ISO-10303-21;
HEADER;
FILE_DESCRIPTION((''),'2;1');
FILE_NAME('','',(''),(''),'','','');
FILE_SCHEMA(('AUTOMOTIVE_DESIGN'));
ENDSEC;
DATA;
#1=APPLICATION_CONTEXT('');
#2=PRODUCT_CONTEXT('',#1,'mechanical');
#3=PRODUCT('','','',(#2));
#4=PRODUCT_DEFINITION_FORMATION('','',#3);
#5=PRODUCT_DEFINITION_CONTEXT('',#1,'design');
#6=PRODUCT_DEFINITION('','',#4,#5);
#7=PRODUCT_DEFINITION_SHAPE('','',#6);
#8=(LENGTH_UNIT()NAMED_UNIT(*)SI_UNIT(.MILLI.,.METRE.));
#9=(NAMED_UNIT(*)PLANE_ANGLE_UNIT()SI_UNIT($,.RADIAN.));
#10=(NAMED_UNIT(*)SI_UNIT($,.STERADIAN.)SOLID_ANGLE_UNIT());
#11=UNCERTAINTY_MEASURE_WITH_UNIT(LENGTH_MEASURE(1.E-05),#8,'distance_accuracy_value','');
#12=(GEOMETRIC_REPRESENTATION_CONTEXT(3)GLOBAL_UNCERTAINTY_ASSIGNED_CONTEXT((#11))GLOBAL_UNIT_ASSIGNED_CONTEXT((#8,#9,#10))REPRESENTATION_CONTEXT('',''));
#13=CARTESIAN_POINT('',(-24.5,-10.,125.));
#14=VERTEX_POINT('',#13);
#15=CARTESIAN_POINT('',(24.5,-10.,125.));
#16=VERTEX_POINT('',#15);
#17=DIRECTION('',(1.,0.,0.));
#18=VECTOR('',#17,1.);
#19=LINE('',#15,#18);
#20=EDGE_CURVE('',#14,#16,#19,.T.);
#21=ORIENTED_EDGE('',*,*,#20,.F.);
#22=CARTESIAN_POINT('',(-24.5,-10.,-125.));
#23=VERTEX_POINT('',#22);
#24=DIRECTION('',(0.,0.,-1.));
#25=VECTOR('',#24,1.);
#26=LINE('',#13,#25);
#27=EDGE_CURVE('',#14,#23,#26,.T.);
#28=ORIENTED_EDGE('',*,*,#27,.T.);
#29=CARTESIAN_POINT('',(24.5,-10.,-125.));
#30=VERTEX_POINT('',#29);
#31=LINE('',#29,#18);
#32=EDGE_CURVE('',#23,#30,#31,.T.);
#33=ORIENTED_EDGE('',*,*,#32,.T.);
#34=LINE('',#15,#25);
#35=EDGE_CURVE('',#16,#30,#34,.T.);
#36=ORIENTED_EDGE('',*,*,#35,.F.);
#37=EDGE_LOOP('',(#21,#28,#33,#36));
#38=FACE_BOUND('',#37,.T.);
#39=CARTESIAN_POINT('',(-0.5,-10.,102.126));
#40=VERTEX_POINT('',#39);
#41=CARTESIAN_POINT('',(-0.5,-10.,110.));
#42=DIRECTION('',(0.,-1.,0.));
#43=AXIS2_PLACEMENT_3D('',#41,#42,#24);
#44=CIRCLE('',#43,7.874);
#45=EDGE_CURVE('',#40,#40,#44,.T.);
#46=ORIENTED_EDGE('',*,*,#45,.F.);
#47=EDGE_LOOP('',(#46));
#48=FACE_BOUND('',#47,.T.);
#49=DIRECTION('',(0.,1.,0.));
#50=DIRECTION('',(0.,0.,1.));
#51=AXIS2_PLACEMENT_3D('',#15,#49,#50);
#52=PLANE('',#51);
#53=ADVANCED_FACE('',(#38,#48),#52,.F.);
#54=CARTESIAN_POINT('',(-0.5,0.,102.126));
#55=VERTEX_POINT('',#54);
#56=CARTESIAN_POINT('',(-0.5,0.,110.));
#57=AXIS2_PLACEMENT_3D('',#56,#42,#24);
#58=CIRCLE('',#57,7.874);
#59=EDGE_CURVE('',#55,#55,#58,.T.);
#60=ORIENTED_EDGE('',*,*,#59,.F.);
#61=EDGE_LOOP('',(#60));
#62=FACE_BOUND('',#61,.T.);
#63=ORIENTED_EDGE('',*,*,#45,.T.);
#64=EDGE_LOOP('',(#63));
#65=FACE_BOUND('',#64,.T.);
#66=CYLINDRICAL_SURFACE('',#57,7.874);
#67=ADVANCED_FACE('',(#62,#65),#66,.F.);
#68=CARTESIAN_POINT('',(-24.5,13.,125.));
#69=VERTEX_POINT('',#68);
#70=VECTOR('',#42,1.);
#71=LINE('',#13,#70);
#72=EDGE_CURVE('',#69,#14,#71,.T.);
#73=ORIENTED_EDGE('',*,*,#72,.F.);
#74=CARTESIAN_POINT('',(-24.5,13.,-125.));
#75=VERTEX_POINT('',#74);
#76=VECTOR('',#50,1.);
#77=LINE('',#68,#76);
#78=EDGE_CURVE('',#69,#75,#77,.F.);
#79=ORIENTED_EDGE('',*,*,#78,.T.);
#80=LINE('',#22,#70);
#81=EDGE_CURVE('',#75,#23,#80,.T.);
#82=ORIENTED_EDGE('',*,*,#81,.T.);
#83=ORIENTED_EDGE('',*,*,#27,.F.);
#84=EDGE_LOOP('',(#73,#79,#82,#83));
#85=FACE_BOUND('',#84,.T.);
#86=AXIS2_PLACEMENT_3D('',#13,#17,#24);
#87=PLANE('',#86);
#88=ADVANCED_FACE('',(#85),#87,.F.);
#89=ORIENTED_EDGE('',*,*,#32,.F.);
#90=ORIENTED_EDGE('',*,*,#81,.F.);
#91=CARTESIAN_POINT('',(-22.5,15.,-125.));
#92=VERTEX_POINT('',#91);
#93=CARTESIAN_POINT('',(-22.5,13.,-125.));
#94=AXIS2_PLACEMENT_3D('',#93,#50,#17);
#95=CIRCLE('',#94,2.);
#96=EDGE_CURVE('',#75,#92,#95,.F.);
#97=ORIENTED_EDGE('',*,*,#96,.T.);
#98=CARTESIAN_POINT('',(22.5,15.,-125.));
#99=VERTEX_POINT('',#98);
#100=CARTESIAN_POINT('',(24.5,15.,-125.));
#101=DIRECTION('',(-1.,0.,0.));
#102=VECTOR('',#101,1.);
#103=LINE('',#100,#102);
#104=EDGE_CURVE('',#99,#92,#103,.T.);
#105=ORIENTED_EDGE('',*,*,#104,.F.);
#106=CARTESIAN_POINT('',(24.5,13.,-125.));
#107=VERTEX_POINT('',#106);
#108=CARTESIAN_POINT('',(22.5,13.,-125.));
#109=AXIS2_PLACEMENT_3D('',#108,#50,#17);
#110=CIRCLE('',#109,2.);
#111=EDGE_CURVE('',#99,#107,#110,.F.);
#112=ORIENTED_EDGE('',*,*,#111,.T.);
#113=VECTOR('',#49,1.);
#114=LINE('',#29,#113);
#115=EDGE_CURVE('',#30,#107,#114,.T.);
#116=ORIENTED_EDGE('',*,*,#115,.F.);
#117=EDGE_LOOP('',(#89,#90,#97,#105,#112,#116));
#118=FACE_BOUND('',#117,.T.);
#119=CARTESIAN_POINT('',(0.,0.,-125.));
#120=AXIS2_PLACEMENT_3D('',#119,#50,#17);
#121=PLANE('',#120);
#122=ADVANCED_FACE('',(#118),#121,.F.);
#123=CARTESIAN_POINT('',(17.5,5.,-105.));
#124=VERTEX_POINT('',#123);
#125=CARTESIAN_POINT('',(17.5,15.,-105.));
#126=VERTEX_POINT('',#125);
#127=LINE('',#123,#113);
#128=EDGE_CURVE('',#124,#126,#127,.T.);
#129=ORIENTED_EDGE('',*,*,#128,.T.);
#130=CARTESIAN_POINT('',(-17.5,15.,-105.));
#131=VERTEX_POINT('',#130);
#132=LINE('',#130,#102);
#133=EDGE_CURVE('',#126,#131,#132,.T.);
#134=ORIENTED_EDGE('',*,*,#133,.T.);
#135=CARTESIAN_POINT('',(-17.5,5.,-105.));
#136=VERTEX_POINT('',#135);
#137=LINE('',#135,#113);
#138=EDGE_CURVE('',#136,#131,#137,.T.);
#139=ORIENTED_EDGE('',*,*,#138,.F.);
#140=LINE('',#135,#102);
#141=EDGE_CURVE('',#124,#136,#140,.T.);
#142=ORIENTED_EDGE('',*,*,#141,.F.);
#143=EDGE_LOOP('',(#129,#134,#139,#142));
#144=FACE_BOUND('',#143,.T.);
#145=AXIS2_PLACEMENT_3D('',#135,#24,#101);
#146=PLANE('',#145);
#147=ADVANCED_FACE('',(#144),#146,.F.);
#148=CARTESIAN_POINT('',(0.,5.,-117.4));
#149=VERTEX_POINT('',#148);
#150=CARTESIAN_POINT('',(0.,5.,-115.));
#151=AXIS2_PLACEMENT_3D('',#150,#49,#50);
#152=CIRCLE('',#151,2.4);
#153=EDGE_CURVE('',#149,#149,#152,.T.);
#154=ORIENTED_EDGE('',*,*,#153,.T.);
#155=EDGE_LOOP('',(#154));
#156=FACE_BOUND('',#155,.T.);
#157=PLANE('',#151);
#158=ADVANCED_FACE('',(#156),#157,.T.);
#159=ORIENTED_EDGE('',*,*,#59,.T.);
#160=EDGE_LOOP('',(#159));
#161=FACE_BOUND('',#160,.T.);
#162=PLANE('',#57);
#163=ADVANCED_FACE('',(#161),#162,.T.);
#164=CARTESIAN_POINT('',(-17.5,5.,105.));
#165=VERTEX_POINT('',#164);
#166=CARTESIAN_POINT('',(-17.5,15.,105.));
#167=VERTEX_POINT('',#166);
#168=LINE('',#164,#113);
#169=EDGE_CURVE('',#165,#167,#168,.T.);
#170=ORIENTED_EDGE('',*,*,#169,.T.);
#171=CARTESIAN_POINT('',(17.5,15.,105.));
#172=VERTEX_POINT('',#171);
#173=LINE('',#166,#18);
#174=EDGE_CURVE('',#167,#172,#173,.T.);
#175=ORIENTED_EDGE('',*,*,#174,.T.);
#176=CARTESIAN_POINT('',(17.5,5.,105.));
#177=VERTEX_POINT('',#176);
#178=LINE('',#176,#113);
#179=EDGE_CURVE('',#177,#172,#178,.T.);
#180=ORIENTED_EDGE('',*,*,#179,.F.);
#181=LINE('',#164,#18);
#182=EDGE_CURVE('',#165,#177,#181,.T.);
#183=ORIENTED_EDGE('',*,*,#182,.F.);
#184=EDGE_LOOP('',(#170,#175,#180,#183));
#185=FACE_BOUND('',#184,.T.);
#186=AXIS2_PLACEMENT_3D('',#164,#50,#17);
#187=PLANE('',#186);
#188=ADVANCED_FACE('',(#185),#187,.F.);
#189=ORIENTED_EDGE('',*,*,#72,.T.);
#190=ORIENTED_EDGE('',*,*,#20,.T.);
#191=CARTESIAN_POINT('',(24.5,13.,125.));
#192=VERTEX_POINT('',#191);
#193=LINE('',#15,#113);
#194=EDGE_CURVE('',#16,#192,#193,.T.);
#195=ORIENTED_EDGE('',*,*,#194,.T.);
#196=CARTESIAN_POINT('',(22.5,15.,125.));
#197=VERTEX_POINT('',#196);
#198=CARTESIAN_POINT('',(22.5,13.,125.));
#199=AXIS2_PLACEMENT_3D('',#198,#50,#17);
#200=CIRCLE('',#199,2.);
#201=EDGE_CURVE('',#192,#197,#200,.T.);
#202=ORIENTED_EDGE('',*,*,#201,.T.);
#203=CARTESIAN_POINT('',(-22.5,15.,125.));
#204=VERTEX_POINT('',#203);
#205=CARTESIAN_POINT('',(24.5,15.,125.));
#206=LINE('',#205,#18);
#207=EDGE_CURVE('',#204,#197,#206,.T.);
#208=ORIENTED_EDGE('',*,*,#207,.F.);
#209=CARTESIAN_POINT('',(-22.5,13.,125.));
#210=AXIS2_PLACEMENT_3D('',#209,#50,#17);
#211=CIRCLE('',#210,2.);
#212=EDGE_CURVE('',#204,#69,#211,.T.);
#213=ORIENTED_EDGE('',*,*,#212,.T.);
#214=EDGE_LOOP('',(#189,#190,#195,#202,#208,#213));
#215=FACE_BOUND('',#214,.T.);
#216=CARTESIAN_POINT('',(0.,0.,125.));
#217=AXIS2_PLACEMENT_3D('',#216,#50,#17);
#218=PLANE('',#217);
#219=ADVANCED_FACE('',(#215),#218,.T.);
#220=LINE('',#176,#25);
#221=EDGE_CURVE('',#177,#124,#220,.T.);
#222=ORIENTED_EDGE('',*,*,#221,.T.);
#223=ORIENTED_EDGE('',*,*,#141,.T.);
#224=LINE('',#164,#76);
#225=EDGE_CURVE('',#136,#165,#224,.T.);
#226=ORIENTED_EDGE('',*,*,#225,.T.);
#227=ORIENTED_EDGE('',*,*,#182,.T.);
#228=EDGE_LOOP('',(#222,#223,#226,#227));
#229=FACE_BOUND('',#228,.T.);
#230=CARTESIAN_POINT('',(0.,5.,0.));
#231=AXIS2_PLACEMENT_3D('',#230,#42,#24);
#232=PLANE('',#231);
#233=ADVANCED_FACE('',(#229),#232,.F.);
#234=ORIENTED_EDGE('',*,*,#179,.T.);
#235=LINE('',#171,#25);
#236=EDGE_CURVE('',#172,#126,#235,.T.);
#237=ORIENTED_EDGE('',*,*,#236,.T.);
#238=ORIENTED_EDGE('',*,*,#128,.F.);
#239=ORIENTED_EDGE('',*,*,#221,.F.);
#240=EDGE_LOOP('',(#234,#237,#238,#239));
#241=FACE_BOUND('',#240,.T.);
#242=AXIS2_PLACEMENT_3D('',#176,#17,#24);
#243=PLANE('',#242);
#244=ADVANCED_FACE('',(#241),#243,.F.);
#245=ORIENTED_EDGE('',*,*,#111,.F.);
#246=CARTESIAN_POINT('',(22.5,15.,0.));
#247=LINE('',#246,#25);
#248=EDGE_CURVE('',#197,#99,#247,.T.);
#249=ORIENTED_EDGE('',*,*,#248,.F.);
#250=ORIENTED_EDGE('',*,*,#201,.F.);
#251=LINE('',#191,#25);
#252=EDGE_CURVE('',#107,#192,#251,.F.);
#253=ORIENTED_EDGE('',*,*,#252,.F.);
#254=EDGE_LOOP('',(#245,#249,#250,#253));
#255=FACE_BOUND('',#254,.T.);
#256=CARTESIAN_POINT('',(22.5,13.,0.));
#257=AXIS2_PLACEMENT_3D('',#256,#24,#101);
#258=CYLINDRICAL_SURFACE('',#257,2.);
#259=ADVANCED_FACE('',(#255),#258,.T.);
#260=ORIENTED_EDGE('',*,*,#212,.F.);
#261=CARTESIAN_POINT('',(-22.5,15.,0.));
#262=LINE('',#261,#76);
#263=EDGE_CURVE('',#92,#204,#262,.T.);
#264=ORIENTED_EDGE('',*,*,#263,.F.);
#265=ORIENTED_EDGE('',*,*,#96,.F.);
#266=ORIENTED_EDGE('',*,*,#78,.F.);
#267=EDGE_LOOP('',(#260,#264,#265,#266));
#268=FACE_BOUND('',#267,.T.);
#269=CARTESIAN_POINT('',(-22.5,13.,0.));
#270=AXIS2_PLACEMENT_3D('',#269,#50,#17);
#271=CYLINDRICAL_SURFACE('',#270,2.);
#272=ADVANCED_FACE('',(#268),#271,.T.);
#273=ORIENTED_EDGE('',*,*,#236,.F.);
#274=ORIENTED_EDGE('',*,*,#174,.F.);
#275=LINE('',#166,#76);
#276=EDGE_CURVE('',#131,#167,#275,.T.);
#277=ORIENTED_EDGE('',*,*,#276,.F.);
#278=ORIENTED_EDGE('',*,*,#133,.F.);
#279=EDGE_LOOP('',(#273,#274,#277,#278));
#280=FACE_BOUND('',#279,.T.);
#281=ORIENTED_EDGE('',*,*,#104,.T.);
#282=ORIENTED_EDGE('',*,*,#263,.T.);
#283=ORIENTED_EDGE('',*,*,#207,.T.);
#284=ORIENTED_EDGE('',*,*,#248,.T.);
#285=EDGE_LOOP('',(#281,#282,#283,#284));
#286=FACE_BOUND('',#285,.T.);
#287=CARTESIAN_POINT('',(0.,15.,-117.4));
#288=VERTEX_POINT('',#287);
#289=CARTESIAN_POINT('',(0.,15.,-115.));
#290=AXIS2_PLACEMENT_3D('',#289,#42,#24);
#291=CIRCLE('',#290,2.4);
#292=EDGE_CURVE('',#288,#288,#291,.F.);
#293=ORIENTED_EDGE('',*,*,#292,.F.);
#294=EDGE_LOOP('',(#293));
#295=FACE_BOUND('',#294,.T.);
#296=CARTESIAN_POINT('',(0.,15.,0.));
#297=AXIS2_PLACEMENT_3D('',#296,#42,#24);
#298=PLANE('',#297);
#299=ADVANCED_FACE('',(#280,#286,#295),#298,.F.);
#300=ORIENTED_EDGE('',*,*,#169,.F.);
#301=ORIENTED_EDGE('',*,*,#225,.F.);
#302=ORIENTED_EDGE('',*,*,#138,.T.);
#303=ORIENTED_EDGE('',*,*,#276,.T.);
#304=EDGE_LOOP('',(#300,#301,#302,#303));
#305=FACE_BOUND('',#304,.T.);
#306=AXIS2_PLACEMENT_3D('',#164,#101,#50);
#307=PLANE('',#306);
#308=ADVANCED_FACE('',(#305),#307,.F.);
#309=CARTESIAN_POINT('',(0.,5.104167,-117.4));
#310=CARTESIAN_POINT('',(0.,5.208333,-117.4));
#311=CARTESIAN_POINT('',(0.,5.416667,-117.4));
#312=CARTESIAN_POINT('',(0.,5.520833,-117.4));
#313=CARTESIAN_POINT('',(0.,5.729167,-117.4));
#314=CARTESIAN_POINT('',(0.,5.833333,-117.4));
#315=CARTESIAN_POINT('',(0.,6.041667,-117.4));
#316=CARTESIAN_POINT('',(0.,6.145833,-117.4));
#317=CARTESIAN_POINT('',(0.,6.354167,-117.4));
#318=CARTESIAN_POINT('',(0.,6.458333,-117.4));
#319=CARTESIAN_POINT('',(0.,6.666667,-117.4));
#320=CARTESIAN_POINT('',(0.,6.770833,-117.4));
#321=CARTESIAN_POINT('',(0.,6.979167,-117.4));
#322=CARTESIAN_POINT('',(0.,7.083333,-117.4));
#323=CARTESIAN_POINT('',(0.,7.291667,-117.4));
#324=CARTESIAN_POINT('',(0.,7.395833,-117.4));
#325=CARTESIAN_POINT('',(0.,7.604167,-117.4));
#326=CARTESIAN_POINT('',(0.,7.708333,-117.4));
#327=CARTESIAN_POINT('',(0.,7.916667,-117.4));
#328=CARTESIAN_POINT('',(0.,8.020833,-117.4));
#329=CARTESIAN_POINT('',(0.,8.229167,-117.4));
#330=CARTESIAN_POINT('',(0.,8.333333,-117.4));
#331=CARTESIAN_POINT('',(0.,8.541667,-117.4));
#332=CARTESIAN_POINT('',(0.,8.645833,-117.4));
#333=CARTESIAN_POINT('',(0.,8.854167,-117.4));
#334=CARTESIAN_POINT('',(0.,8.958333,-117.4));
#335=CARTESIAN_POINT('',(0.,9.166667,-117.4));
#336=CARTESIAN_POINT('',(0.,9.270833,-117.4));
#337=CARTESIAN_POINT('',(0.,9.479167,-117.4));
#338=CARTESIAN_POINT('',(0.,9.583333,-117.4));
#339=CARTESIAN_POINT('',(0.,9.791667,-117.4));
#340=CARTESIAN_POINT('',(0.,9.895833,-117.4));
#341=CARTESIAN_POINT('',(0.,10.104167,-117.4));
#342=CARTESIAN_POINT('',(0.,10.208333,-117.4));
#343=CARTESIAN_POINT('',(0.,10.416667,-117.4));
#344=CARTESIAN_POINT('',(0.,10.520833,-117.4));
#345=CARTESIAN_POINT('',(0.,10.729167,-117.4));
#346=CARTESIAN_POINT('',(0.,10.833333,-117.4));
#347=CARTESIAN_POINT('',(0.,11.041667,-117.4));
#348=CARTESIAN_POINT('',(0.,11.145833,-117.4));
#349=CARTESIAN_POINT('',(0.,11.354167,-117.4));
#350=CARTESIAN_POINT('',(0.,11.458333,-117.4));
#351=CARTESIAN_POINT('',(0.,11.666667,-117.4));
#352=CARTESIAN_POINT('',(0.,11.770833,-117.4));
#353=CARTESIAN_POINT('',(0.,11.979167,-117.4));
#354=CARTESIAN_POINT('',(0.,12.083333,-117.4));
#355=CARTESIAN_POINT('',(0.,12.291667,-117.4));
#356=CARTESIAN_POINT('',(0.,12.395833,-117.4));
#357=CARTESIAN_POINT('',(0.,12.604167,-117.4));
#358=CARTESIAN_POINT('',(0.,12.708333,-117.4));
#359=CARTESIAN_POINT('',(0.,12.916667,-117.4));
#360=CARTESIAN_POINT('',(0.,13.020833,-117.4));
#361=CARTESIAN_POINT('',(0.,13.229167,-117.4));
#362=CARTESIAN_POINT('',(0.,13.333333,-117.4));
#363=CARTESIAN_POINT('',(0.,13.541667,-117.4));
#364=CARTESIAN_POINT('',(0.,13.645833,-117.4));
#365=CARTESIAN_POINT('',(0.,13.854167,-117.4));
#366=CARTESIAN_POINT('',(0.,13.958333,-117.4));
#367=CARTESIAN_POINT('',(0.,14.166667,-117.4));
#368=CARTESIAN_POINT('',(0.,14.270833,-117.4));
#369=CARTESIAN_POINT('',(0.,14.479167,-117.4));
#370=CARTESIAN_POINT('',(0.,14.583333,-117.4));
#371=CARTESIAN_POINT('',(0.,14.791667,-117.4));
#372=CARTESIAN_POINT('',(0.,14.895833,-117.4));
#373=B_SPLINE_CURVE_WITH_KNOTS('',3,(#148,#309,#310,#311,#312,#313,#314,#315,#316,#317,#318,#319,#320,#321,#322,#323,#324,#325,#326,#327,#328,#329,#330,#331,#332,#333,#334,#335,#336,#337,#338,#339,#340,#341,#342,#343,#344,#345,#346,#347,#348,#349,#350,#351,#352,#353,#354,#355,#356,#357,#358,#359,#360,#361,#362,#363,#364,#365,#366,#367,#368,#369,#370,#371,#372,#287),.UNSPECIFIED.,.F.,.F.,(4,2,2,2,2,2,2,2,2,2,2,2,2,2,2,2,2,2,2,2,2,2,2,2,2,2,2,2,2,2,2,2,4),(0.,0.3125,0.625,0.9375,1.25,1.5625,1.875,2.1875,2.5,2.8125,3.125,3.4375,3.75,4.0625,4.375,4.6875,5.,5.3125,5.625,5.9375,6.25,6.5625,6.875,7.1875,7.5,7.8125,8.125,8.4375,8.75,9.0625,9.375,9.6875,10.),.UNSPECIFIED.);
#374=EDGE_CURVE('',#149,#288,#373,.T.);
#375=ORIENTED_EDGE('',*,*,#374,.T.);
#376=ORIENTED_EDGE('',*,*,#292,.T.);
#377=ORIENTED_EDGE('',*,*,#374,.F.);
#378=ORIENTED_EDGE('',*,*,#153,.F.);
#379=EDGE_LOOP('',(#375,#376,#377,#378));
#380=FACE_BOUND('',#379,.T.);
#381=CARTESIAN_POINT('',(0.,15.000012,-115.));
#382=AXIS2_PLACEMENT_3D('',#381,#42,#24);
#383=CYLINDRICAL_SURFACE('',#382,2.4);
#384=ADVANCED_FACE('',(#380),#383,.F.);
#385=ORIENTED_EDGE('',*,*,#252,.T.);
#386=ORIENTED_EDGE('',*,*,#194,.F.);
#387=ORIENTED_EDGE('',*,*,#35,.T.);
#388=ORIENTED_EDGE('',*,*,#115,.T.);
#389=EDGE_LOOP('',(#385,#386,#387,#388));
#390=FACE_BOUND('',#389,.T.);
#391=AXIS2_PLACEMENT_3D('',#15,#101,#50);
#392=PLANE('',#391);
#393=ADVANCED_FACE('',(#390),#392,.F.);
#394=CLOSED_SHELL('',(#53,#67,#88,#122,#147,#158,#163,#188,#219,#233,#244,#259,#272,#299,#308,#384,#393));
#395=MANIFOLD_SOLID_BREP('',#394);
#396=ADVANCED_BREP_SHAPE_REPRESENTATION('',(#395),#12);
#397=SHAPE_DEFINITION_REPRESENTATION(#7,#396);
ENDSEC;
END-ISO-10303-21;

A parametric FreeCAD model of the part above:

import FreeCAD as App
import Part
import Sketcher

V = App.Vector


def edges_at(feature, points):
    """Names of the edges that pass closest to the given points."""
    edges = feature.Shape.Edges
    near = lambda p: min(range(len(edges)), key=lambda i: edges[i].distToShape(Part.Vertex(*p))[0])
    return sorted({f"Edge{near(p) + 1}" for p in points})


def add_polygon(sketch, points):
    """Adds a closed chain of lines whose ends are joined by coincident constraints."""
    first, n = sketch.GeometryCount, len(points)
    for a, b in zip(points, points[1:] + points[:1]):
        sketch.addGeometry(Part.LineSegment(App.Vector(*a, 0), App.Vector(*b, 0)), False)
    for i in range(n):
        sketch.addConstraint(Sketcher.Constraint("Coincident", first + i, 2, first + (i + 1) % n, 1))

doc = App.newDocument("Part")
params = doc.addObject("Spreadsheet::Sheet", "Params")
for row, (alias, value) in enumerate([
    ("sketch1_width", "49 mm"),
    ("sketch1_height", "20 mm"),
    ("pad1_length", "250 mm"),
    ("sketch2_width", "49 mm"),
    ("sketch2_height", "250 mm"),
    ("pad2_length", "5 mm"),
    ("sketch3_diameter", "4.8 mm"),
    ("pocket1_length", "130.808513 mm"),
    ("pocket1_length2", "10 mm"),
    ("sketch4_width", "35 mm"),
    ("sketch4_height", "210 mm"),
    ("pocket2_length", "10 mm"),
    ("fillet_radius", "2 mm"),
    ("pocket3_length", "10 mm"),
], start=1):
    params.set(f"A{row}", alias)
    params.set(f"B{row}", "=" + value)
    params.setAlias(f"B{row}", alias)

body = doc.addObject("PartDesign::Body", "Body")

sketch1 = body.newObject("Sketcher::SketchObject", "Sketch")
sketch1.AttachmentSupport = (doc.getObject("XY_Plane"), [""])
sketch1.MapMode = "FlatFace"
add_polygon(sketch1, [(-24, 10), (-24, -10), (24, -10), (24, 10)])
sketch1.addConstraint(Sketcher.Constraint("Vertical", 0))
sketch1.addConstraint(Sketcher.Constraint("Horizontal", 1))
sketch1.addConstraint(Sketcher.Constraint("Vertical", 2))
sketch1.addConstraint(Sketcher.Constraint("Horizontal", 3))
sketch1.addConstraint(Sketcher.Constraint("Symmetric", 0, 2, 2, 2, -1, 1))
sketch1.addConstraint(Sketcher.Constraint("DistanceX", 1, 1, 1, 2, 49.0))
sketch1.addConstraint(Sketcher.Constraint("DistanceY", 0, 2, 0, 1, 20.0))
sketch1.setExpression("Constraints[9]", "Params.sketch1_width")
sketch1.setExpression("Constraints[10]", "Params.sketch1_height")
pad1 = body.newObject("PartDesign::Pad", "Pad")
pad1.Profile = sketch1
pad1.setExpression("Length", "Params.pad1_length")
pad1.Midplane = True

sketch2 = body.newObject("Sketcher::SketchObject", "Sketch001")
sketch2.AttachmentSupport = (doc.getObject("XZ_Plane"), [""])
sketch2.MapMode = "FlatFace"
sketch2.AttachmentOffset = App.Placement(V(0, 0, -10), App.Rotation())
add_polygon(sketch2, [(-24, -125), (-24, 125), (24, 125), (24, -125)])
sketch2.addConstraint(Sketcher.Constraint("Vertical", 0))
sketch2.addConstraint(Sketcher.Constraint("Horizontal", 1))
sketch2.addConstraint(Sketcher.Constraint("Vertical", 2))
sketch2.addConstraint(Sketcher.Constraint("Horizontal", 3))
sketch2.addConstraint(Sketcher.Constraint("Symmetric", 0, 2, 2, 2, -1, 1))
sketch2.addConstraint(Sketcher.Constraint("DistanceX", 1, 1, 1, 2, 49.0))
sketch2.addConstraint(Sketcher.Constraint("DistanceY", 0, 1, 0, 2, 250.0))
sketch2.setExpression("Constraints[9]", "Params.sketch2_width")
sketch2.setExpression("Constraints[10]", "Params.sketch2_height")
pad2 = body.newObject("PartDesign::Pad", "Pad001")
pad2.Profile = sketch2
pad2.setExpression("Length", "Params.pad2_length")
pad2.Reversed = True

sketch3 = body.newObject("Sketcher::SketchObject", "Sketch002")
sketch3.AttachmentSupport = (doc.getObject("XZ_Plane"), [""])
sketch3.MapMode = "FlatFace"
sketch3.AttachmentOffset = App.Placement(V(0, 0, -15), App.Rotation())
sketch3.addGeometry(Part.Circle(V(0, -115, 0), V(0, 0, 1), 2.4), False)
sketch3.addConstraint(Sketcher.Constraint("PointOnObject", 0, 3, -2))
sketch3.addConstraint(Sketcher.Constraint("Diameter", 0, 4.8))
sketch3.addConstraint(Sketcher.Constraint("DistanceY", 0, 3, -1, 1, 115.0))
sketch3.setExpression("Constraints[1]", "Params.sketch3_diameter")
pocket1 = body.newObject("PartDesign::Pocket", "Pocket")
pocket1.Profile = sketch3
pocket1.Type = "TwoLengths"
pocket1.setExpression("Length", "Params.pocket1_length")
pocket1.setExpression("Length2", "Params.pocket1_length2")

sketch4 = body.newObject("Sketcher::SketchObject", "Sketch003")
sketch4.AttachmentSupport = (doc.getObject("XZ_Plane"), [""])
sketch4.MapMode = "FlatFace"
sketch4.AttachmentOffset = App.Placement(V(0, 0, -15), App.Rotation())
add_polygon(sketch4, [(-18, -105), (-18, 105), (18, 105), (18, -105)])
sketch4.addConstraint(Sketcher.Constraint("Vertical", 0))
sketch4.addConstraint(Sketcher.Constraint("Horizontal", 1))
sketch4.addConstraint(Sketcher.Constraint("Vertical", 2))
sketch4.addConstraint(Sketcher.Constraint("Horizontal", 3))
sketch4.addConstraint(Sketcher.Constraint("Symmetric", 0, 2, 2, 2, -1, 1))
sketch4.addConstraint(Sketcher.Constraint("DistanceX", 1, 1, 1, 2, 35.0))
sketch4.addConstraint(Sketcher.Constraint("DistanceY", 0, 1, 0, 2, 210.0))
sketch4.setExpression("Constraints[9]", "Params.sketch4_width")
sketch4.setExpression("Constraints[10]", "Params.sketch4_height")
pocket2 = body.newObject("PartDesign::Pocket", "Pocket001")
pocket2.Profile = sketch4
pocket2.setExpression("Length", "Params.pocket2_length")
pocket2.Reversed = True
doc.recompute()

fillet = body.newObject("PartDesign::Fillet", "Fillet")
fillet.Base = (pocket2, edges_at(pocket2, [(-24.5, 15, 0), (24.5, 15, 0)]))
fillet.setExpression("Radius", "Params.fillet_radius")

sketch5 = body.newObject("Sketcher::SketchObject", "Sketch004")
sketch5.AttachmentSupport = (doc.getObject("XZ_Plane"), [""])
sketch5.MapMode = "FlatFace"
sketch5.AttachmentOffset = App.Placement(V(0, 0, 10), App.Rotation())
sketch5.addGeometry(Part.Circle(V(0, 110, 0), V(0, 0, 1), 8), False)
sketch5.addConstraint(Sketcher.Constraint("Diameter", 0, 15.748))
sketch5.addConstraint(Sketcher.Constraint("DistanceY", -1, 1, 0, 3, 110.0))
sketch5.addConstraint(Sketcher.Constraint("DistanceX", 0, 3, -1, 1, 0.5))
pocket3 = body.newObject("PartDesign::Pocket", "Pocket002")
pocket3.Profile = sketch5
pocket3.setExpression("Length", "Params.pocket3_length")

doc.recompute()
